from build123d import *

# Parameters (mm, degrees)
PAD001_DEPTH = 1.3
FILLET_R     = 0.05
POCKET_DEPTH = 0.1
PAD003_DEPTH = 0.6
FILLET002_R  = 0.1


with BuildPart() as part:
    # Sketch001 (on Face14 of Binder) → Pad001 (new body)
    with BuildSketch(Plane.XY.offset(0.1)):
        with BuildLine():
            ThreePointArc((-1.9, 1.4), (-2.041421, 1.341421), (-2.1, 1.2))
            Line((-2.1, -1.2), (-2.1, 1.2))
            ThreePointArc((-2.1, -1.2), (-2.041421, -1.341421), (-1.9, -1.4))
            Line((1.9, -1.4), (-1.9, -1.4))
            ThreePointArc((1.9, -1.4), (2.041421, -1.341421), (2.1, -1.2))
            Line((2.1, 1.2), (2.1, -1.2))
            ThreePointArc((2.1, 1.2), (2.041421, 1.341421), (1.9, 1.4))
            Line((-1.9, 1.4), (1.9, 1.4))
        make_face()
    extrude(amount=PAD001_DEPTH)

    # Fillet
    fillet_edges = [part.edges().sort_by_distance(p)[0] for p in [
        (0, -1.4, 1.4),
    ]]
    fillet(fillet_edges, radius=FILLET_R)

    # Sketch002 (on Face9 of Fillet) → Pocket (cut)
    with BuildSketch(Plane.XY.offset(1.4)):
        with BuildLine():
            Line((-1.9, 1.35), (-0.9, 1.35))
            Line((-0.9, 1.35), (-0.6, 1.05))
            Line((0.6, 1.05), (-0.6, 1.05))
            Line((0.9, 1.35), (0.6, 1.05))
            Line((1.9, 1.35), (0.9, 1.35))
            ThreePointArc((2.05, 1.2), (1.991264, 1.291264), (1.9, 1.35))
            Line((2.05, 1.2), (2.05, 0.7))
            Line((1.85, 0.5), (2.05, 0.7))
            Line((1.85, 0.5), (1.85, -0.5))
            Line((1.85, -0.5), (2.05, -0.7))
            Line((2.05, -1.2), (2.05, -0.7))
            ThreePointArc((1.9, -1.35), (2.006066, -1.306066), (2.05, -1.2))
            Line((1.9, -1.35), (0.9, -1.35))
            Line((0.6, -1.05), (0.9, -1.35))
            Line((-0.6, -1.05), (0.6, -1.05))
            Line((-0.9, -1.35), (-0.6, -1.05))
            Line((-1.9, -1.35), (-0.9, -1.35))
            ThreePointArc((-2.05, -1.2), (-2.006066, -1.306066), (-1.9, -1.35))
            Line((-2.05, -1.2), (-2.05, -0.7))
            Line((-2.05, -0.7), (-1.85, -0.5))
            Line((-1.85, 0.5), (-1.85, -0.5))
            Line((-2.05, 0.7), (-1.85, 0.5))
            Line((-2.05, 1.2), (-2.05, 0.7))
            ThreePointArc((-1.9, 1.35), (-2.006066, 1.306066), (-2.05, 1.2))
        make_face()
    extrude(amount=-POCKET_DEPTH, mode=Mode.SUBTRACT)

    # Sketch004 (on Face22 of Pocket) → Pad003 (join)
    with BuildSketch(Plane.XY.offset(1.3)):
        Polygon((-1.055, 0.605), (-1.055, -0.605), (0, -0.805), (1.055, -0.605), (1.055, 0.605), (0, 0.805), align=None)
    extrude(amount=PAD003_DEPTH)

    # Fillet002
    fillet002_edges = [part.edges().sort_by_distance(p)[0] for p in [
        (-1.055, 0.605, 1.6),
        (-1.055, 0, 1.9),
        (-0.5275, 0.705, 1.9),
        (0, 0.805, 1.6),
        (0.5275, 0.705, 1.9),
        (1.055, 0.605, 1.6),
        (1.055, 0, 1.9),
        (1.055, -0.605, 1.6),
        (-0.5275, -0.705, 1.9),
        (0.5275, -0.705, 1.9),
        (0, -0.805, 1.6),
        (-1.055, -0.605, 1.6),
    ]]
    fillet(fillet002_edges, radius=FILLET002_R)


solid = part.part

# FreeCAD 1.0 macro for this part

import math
import FreeCAD as App
import Part
import Sketcher


def edges_at(feature, points):
    """Names of the edges that pass closest to the given points."""
    edges = feature.Shape.Edges
    near = lambda p: min(range(len(edges)), key=lambda i: edges[i].distToShape(Part.Vertex(*p))[0])
    return sorted({f"Edge{near(p) + 1}" for p in points})


def add_polygon(sketch, points):
    """Adds a closed chain of lines whose ends are joined by coincident constraints."""
    first, n = sketch.GeometryCount, len(points)
    for a, b in zip(points, points[1:] + points[:1]):
        sketch.addGeometry(Part.LineSegment(App.Vector(*a, 0), App.Vector(*b, 0)), False)
    for i in range(n):
        sketch.addConstraint(Sketcher.Constraint("Coincident", first + i, 2, first + (i + 1) % n, 1))

doc = App.newDocument("Part")
body = doc.addObject("PartDesign::Body", "Body")

sketch1 = doc.addObject("Sketcher::SketchObject", "Sketch")
body.addObject(sketch1)
sketch1.AttachmentSupport = (doc.XY_Plane, [""])
sketch1.MapMode = "FlatFace"
sketch1.AttachmentOffset = App.Placement(App.Vector(0, 0, 0.1), App.Rotation())
sketch1.addGeometry([
    Part.ArcOfCircle(Part.Circle(App.Vector(-1.9, 1.2, 0), App.Vector(0, 0, 1), 0.2), math.radians(90), math.radians(180)),
    Part.LineSegment(App.Vector(-2.1, 1.2, 0), App.Vector(-2.1, -1.2, 0)),
    Part.ArcOfCircle(Part.Circle(App.Vector(-1.9, -1.2, 0), App.Vector(0, 0, 1), 0.2), math.radians(-180), math.radians(-90)),
    Part.LineSegment(App.Vector(-1.9, -1.4, 0), App.Vector(1.9, -1.4, 0)),
    Part.ArcOfCircle(Part.Circle(App.Vector(1.9, -1.2, 0), App.Vector(0, 0, 1), 0.2), math.radians(-90), math.radians(0)),
    Part.LineSegment(App.Vector(2.1, -1.2, 0), App.Vector(2.1, 1.2, 0)),
    Part.ArcOfCircle(Part.Circle(App.Vector(1.9, 1.2, 0), App.Vector(0, 0, 1), 0.2), math.radians(0), math.radians(90)),
    Part.LineSegment(App.Vector(1.9, 1.4, 0), App.Vector(-1.9, 1.4, 0)),
], False)
sketch1.addConstraint([
    Sketcher.Constraint("Coincident", 0, 2, 1, 1),
    Sketcher.Constraint("Coincident", 1, 2, 2, 1),
    Sketcher.Constraint("Coincident", 2, 2, 3, 1),
    Sketcher.Constraint("Coincident", 3, 2, 4, 1),
    Sketcher.Constraint("Coincident", 4, 2, 5, 1),
    Sketcher.Constraint("Coincident", 5, 2, 6, 1),
    Sketcher.Constraint("Coincident", 6, 2, 7, 1),
    Sketcher.Constraint("Coincident", 7, 2, 0, 1),
    Sketcher.Constraint("Vertical", 1),
    Sketcher.Constraint("Horizontal", 3),
    Sketcher.Constraint("Vertical", 5),
    Sketcher.Constraint("Horizontal", 7),
    Sketcher.Constraint("Equal", 0, 2),
    Sketcher.Constraint("Equal", 2, 4),
    Sketcher.Constraint("Equal", 4, 6),
    Sketcher.Constraint("Symmetric", 0, 3, 4, 3, -1, 1),
    Sketcher.Constraint("Horizontal", 6, 3, 0, 2),
    Sketcher.Constraint("Horizontal", 4, 3, 1, 2),
    Sketcher.Constraint("Horizontal", 1, 2, 4, 2),
    Sketcher.Constraint("Horizontal", 0, 2, 5, 2),
    Sketcher.Constraint("Vertical", 0, 3, 2, 2),
    Sketcher.Constraint("Vertical", 6, 3, 3, 2),
    Sketcher.Constraint("Vertical", 3, 2, 6, 2),
    Sketcher.Constraint("Vertical", 2, 2, 7, 2),
    Sketcher.Constraint("Radius", 0, 0.200001),
    Sketcher.Constraint("DistanceX", 3, 1, 3, 2, 3.8),
    Sketcher.Constraint("DistanceY", 1, 2, 1, 1, 2.4),
])
pad1 = doc.addObject("PartDesign::Pad", "Pad")
body.addObject(pad1)
pad1.Profile = sketch1
pad1.Length = 1.3
doc.recompute()

fillet = doc.addObject("PartDesign::Fillet", "Fillet")
body.addObject(fillet)
fillet.Base = (pad1, edges_at(pad1, [(0, -1.4, 1.4)]))
fillet.Radius = 0.05

sketch2 = doc.addObject("Sketcher::SketchObject", "Sketch001")
body.addObject(sketch2)
sketch2.AttachmentSupport = (doc.XY_Plane, [""])
sketch2.MapMode = "FlatFace"
sketch2.AttachmentOffset = App.Placement(App.Vector(0, 0, 1.4), App.Rotation())
sketch2.addGeometry([
    Part.LineSegment(App.Vector(-0.9, 1.35, 0), App.Vector(-1.9, 1.35, 0)),
    Part.ArcOfCircle(Part.Circle(App.Vector(-1.9, 1.2, 0), App.Vector(0, 0, 1), 0.15), math.radians(90), math.radians(180)),
    Part.LineSegment(App.Vector(-2.05, 1.2, 0), App.Vector(-2.05, 0.7, 0)),
    Part.LineSegment(App.Vector(-2.05, 0.7, 0), App.Vector(-1.85, 0.5, 0)),
    Part.LineSegment(App.Vector(-1.85, 0.5, 0), App.Vector(-1.85, -0.5, 0)),
    Part.LineSegment(App.Vector(-1.85, -0.5, 0), App.Vector(-2.05, -0.7, 0)),
    Part.LineSegment(App.Vector(-2.05, -0.7, 0), App.Vector(-2.05, -1.2, 0)),
    Part.ArcOfCircle(Part.Circle(App.Vector(-1.9, -1.2, 0), App.Vector(0, 0, 1), 0.15), math.radians(-180), math.radians(-90)),
    Part.LineSegment(App.Vector(-1.9, -1.35, 0), App.Vector(-0.9, -1.35, 0)),
    Part.LineSegment(App.Vector(-0.9, -1.35, 0), App.Vector(-0.6, -1.05, 0)),
    Part.LineSegment(App.Vector(-0.6, -1.05, 0), App.Vector(0.6, -1.05, 0)),
    Part.LineSegment(App.Vector(0.6, -1.05, 0), App.Vector(0.9, -1.35, 0)),
    Part.LineSegment(App.Vector(0.9, -1.35, 0), App.Vector(1.9, -1.35, 0)),
    Part.ArcOfCircle(Part.Circle(App.Vector(1.9, -1.2, 0), App.Vector(0, 0, 1), 0.15), math.radians(-90), math.radians(0)),
    Part.LineSegment(App.Vector(2.05, -1.2, 0), App.Vector(2.05, -0.7, 0)),
    Part.LineSegment(App.Vector(2.05, -0.7, 0), App.Vector(1.85, -0.5, 0)),
    Part.LineSegment(App.Vector(1.85, -0.5, 0), App.Vector(1.85, 0.5, 0)),
    Part.LineSegment(App.Vector(1.85, 0.5, 0), App.Vector(2.05, 0.7, 0)),
    Part.LineSegment(App.Vector(2.05, 0.7, 0), App.Vector(2.05, 1.2, 0)),
    Part.ArcOfCircle(Part.Circle(App.Vector(1.81, 1.11, 0), App.Vector(0, 0, 1), 0.26), math.radians(21), math.radians(69)),
    Part.LineSegment(App.Vector(1.9, 1.35, 0), App.Vector(0.9, 1.35, 0)),
    Part.LineSegment(App.Vector(0.9, 1.35, 0), App.Vector(0.6, 1.05, 0)),
    Part.LineSegment(App.Vector(0.6, 1.05, 0), App.Vector(-0.6, 1.05, 0)),
    Part.LineSegment(App.Vector(-0.6, 1.05, 0), App.Vector(-0.9, 1.35, 0)),
], False)
sketch2.addConstraint([
    Sketcher.Constraint("Tangent", 0, 2, 1, 1),
    Sketcher.Constraint("Tangent", 1, 2, 2, 1),
    Sketcher.Constraint("Coincident", 2, 2, 3, 1),
    Sketcher.Constraint("Coincident", 3, 2, 4, 1),
    Sketcher.Constraint("Coincident", 4, 2, 5, 1),
    Sketcher.Constraint("Coincident", 5, 2, 6, 1),
    Sketcher.Constraint("Tangent", 6, 2, 7, 1),
    Sketcher.Constraint("Tangent", 7, 2, 8, 1),
    Sketcher.Constraint("Coincident", 8, 2, 9, 1),
    Sketcher.Constraint("Coincident", 9, 2, 10, 1),
    Sketcher.Constraint("Coincident", 10, 2, 11, 1),
    Sketcher.Constraint("Coincident", 11, 2, 12, 1),
    Sketcher.Constraint("Tangent", 12, 2, 13, 1),
    Sketcher.Constraint("Tangent", 13, 2, 14, 1),
    Sketcher.Constraint("Coincident", 14, 2, 15, 1),
    Sketcher.Constraint("Coincident", 15, 2, 16, 1),
    Sketcher.Constraint("Coincident", 16, 2, 17, 1),
    Sketcher.Constraint("Coincident", 17, 2, 18, 1),
    Sketcher.Constraint("Coincident", 18, 2, 19, 1),
    Sketcher.Constraint("Coincident", 19, 2, 20, 1),
    Sketcher.Constraint("Coincident", 20, 2, 21, 1),
    Sketcher.Constraint("Coincident", 21, 2, 22, 1),
    Sketcher.Constraint("Coincident", 22, 2, 23, 1),
    Sketcher.Constraint("Coincident", 23, 2, 0, 1),
    Sketcher.Constraint("Horizontal", 0),
    Sketcher.Constraint("Vertical", 2),
    Sketcher.Constraint("Vertical", 4),
    Sketcher.Constraint("Vertical", 6),
    Sketcher.Constraint("Horizontal", 8),
    Sketcher.Constraint("Horizontal", 10),
    Sketcher.Constraint("Horizontal", 12),
    Sketcher.Constraint("Vertical", 14),
    Sketcher.Constraint("Vertical", 16),
    Sketcher.Constraint("Vertical", 18),
    Sketcher.Constraint("Horizontal", 20),
    Sketcher.Constraint("Horizontal", 22),
    Sketcher.Constraint("Equal", 1, 7),
    Sketcher.Constraint("Equal", 7, 13),
    Sketcher.Constraint("Symmetric", 1, 3, 13, 3, -1, 1),
    Sketcher.Constraint("Symmetric", 3, 2, 15, 2, -1, 1),
    Sketcher.Constraint("Symmetric", 5, 2, 17, 2, -1, 1),
    Sketcher.Constraint("Symmetric", 7, 2, 19, 2, -1, 1),
    Sketcher.Constraint("Symmetric", 9, 2, 21, 2, -1, 1),
    Sketcher.Constraint("Symmetric", 7, 3, 13, 3, -2),
    Sketcher.Constraint("Perpendicular", 3, 5),
    Sketcher.Constraint("Parallel", 5, 9),
    Sketcher.Constraint("Perpendicular", 9, 11),
    Sketcher.Constraint("Parallel", 11, 15),
    Sketcher.Constraint("Perpendicular", 15, 17),
    Sketcher.Constraint("Parallel", 17, 21),
    Sketcher.Constraint("Perpendicular", 21, 23),
    Sketcher.Constraint("Horizontal", 5, 2, 14, 2),
    Sketcher.Constraint("Horizontal", 4, 2, 15, 2),
    Sketcher.Constraint("Horizontal", 1, 2, 18, 2),
    Sketcher.Constraint("Vertical", 11, 2, 20, 2),
    Sketcher.Constraint("Vertical", 9, 2, 22, 2),
    Sketcher.Constraint("Equal", 20, 4),
    Sketcher.Constraint("DistanceX", 0, 2, 0, 1, 1.0),
    Sketcher.Constraint("Radius", 1, 0.15),
    Sketcher.Constraint("DistanceX", 10, 1, 10, 2, 1.2),
    Sketcher.Constraint("DistanceY", 2, 2, 2, 1, 0.5),
    Sketcher.Constraint("DistanceX", 1, 3, -1, 1, 1.9),
    Sketcher.Constraint("DistanceY", -1, 1, 1, 3, 1.2),
    Sketcher.Constraint("Radius", 19, 0.256057),
])
pocket1 = doc.addObject("PartDesign::Pocket", "Pocket")
body.addObject(pocket1)
pocket1.Profile = sketch2
pocket1.Length = 0.1

sketch3 = doc.addObject("Sketcher::SketchObject", "Sketch002")
body.addObject(sketch3)
sketch3.AttachmentSupport = (doc.XY_Plane, [""])
sketch3.MapMode = "FlatFace"
sketch3.AttachmentOffset = App.Placement(App.Vector(0, 0, 1.3), App.Rotation())
add_polygon(sketch3, [(-1.1, 0.6), (-1.1, -0.6), (0, -0.8), (1.1, -0.6), (1.1, 0.6), (0, 0.8)])
sketch3.addConstraint([
    Sketcher.Constraint("Vertical", 0),
    Sketcher.Constraint("Vertical", 3),
    Sketcher.Constraint("Symmetric", 0, 2, 3, 2, -1, 1),
    Sketcher.Constraint("Symmetric", 1, 2, 4, 2, -1, 1),
    Sketcher.Constraint("PointOnObject", 1, 2, -2),
    Sketcher.Constraint("Parallel", 2, 5),
    Sketcher.Constraint("Horizontal", 0, 2, 2, 2),
    Sketcher.Constraint("DistanceY", 0, 2, 0, 1, 1.21),
    Sketcher.Constraint("DistanceY", 1, 2, 0, 2, 0.2),
    Sketcher.Constraint("DistanceX", 0, 2, 2, 2, 2.11),
])
pad2 = doc.addObject("PartDesign::Pad", "Pad001")
body.addObject(pad2)
pad2.Profile = sketch3
pad2.Length = 0.6
doc.recompute()

fillet2 = doc.addObject("PartDesign::Fillet", "Fillet001")
body.addObject(fillet2)
fillet2.Base = (pad2, edges_at(pad2, [
    (-1.055, 0.605, 1.6),
    (-1.055, 0, 1.9),
    (-0.527, 0.705, 1.9),
    (0, 0.805, 1.6),
    (0.527, 0.705, 1.9),
    (1.055, 0.605, 1.6),
    (1.055, 0, 1.9),
    (1.055, -0.605, 1.6),
    (-0.527, -0.705, 1.9),
    (0.527, -0.705, 1.9),
    (0, -0.805, 1.6),
    (-1.055, -0.605, 1.6),
]))
fillet2.Radius = 0.1

doc.recompute()
